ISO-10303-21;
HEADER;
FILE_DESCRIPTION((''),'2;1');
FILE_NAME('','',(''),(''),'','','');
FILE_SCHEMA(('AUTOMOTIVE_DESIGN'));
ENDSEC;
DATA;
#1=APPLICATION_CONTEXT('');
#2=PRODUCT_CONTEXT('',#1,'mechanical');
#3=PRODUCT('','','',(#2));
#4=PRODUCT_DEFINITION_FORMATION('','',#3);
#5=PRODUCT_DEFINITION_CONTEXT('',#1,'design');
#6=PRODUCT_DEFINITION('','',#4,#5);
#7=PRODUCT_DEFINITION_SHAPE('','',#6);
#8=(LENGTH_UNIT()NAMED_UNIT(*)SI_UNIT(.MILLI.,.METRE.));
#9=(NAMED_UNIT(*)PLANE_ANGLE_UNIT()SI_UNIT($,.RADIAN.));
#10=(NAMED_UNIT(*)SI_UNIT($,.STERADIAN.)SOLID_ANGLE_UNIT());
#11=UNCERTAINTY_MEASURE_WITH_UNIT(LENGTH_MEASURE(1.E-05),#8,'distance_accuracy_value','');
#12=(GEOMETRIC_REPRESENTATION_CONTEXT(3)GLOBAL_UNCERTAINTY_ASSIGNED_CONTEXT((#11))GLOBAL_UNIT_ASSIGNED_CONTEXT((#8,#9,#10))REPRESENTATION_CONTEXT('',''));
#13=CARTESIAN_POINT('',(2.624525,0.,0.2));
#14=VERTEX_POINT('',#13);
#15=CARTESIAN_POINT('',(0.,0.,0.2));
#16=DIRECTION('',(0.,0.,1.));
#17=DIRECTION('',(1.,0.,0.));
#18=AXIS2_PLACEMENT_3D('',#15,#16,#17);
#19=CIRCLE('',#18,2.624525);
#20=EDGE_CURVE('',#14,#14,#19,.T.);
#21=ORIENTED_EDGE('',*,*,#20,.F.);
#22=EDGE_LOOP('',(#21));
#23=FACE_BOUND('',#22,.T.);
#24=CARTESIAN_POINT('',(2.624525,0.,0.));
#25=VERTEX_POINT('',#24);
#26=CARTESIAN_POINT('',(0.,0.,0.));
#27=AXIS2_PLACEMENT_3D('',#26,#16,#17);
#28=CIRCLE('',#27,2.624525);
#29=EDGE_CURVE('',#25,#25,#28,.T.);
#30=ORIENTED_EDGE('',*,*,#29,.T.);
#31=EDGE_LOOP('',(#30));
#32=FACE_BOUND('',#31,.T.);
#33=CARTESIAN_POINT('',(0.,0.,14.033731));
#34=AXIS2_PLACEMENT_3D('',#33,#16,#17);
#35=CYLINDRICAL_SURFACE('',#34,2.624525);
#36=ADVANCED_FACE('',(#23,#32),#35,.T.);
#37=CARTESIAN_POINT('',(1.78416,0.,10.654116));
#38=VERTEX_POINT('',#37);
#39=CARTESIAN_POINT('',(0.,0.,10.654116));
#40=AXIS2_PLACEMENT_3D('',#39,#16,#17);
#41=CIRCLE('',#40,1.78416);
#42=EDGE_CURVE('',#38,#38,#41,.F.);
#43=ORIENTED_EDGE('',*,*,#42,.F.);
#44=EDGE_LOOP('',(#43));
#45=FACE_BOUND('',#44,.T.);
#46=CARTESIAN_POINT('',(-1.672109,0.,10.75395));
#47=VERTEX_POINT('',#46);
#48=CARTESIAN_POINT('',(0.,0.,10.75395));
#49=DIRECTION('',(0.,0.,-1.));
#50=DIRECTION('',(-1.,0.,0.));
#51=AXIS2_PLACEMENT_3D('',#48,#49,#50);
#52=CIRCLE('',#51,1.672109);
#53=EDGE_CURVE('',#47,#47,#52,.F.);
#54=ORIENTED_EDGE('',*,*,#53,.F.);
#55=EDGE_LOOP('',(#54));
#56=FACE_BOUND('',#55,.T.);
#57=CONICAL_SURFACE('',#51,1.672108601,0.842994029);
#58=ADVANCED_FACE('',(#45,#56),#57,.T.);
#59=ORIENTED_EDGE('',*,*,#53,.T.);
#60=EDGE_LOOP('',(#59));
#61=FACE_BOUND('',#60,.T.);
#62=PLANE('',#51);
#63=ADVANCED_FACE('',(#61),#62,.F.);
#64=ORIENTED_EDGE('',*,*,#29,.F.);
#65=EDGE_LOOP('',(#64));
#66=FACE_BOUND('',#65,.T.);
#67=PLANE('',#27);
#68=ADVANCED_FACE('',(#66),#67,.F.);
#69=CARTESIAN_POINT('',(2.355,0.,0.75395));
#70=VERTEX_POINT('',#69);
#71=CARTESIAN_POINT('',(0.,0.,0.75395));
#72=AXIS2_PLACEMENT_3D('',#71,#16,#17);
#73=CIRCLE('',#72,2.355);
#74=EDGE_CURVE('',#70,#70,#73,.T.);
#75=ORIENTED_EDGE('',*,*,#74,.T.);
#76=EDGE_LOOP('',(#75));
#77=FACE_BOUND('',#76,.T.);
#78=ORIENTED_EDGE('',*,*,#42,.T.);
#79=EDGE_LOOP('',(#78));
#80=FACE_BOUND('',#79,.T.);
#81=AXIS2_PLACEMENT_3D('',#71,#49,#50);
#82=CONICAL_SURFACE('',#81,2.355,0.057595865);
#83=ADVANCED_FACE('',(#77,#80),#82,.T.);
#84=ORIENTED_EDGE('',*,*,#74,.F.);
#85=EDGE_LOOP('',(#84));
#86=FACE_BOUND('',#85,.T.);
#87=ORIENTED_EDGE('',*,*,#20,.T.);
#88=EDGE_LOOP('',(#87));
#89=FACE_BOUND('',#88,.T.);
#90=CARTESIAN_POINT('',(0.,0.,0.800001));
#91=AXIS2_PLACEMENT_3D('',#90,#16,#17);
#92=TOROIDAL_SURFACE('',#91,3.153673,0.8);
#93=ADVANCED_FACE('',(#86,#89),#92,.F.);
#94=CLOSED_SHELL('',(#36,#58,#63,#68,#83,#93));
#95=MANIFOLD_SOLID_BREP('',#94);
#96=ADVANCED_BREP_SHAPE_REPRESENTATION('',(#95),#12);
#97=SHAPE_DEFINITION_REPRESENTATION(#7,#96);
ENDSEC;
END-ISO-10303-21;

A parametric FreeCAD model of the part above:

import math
import FreeCAD as App
import Part
import Sketcher
from FreeCAD import Vector
Q = App.Units.Quantity


def edges_at(feature, points):
    """Names of the edges that pass closest to the given points."""
    edges = feature.Shape.Edges
    near = lambda p: min(range(len(edges)), key=lambda i: edges[i].distToShape(Part.Vertex(*p))[0])
    return sorted({f"Edge{near(p) + 1}" for p in points})

doc = App.newDocument("Part")
body = doc.addObject("PartDesign::Body", "Body")

# Sketch on YZ plane
sketch1 = doc.addObject("Sketcher::SketchObject", "Sketch")
body.addObject(sketch1)
sketch1.AttachmentSupport = (doc.YZ_Plane, [""])
sketch1.MapMode = "FlatFace"
sketch1.addGeometry(Part.LineSegment(Vector(0, 10.75, 0), Vector(0, 0, 0)), False)
sketch1.addGeometry(Part.LineSegment(Vector(0, 0, 0), Vector(2.62, 0, 0)), False)
sketch1.addGeometry(Part.LineSegment(Vector(2.62, 0, 0), Vector(2.62, 0.2, 0)), False)
sketch1.addGeometry(Part.ArcOfCircle(Part.Circle(Vector(3.15, 0.8, 0), Vector(0, 0, 1), 0.8), math.radians(-177), math.radians(-131)), False)
sketch1.addGeometry(Part.LineSegment(Vector(2.35, 0.75, 0), Vector(1.78, 10.75, 0)), False)
sketch1.addGeometry(Part.LineSegment(Vector(1.78, 10.75, 0), Vector(0, 10.75, 0)), False)
sketch1.addConstraint(Sketcher.Constraint("Coincident", 0, 2, 1, 1))
sketch1.addConstraint(Sketcher.Constraint("Coincident", 1, 2, 2, 1))
sketch1.addConstraint(Sketcher.Constraint("Coincident", 2, 2, 3, 2))
sketch1.addConstraint(Sketcher.Constraint("Tangent", 3, 1, 4, 1))
sketch1.addConstraint(Sketcher.Constraint("Coincident", 4, 2, 5, 1))
sketch1.addConstraint(Sketcher.Constraint("Coincident", 5, 2, 0, 1))
sketch1.addConstraint(Sketcher.Constraint("Vertical", 0))
sketch1.addConstraint(Sketcher.Constraint("Horizontal", 1))
sketch1.addConstraint(Sketcher.Constraint("Vertical", 2))
sketch1.addConstraint(Sketcher.Constraint("Horizontal", 5))
sketch1.addConstraint(Sketcher.Constraint("Coincident", 0, 2, -1, 1))
sketch1.addConstraint(Sketcher.Constraint("Radius", 3, 0.8))
sketch1.addConstraint(Sketcher.Constraint("DistanceY", 2, 1, 2, 2, 0.2))
sketch1.addConstraint(Sketcher.Constraint("Angle", 4, Q("93.3 deg")))
sketch1.addConstraint(Sketcher.Constraint("DistanceY", 3, 1, 4, 2, 10.0))
sketch1.addConstraint(Sketcher.Constraint("DistanceY", -1, 1, 3, 3, 0.800001))
sketch1.addConstraint(Sketcher.Constraint("DistanceX", -1, 1, 3, 1, 2.355))
revolution = doc.addObject("PartDesign::Revolution", "Revolution")
body.addObject(revolution)
revolution.Profile = sketch1
revolution.ReferenceAxis = (sketch1, ["V_Axis"])
revolution.Angle = 360
doc.recompute()

chamfer = doc.addObject("PartDesign::Chamfer", "Chamfer")
body.addObject(chamfer)
chamfer.Base = (revolution, edges_at(revolution, [(-1.778, 0, 10.754)]))
chamfer.ChamferType = "Two distances"
chamfer.Size = 0.1
chamfer.Size2 = 0.106295

doc.recompute()
